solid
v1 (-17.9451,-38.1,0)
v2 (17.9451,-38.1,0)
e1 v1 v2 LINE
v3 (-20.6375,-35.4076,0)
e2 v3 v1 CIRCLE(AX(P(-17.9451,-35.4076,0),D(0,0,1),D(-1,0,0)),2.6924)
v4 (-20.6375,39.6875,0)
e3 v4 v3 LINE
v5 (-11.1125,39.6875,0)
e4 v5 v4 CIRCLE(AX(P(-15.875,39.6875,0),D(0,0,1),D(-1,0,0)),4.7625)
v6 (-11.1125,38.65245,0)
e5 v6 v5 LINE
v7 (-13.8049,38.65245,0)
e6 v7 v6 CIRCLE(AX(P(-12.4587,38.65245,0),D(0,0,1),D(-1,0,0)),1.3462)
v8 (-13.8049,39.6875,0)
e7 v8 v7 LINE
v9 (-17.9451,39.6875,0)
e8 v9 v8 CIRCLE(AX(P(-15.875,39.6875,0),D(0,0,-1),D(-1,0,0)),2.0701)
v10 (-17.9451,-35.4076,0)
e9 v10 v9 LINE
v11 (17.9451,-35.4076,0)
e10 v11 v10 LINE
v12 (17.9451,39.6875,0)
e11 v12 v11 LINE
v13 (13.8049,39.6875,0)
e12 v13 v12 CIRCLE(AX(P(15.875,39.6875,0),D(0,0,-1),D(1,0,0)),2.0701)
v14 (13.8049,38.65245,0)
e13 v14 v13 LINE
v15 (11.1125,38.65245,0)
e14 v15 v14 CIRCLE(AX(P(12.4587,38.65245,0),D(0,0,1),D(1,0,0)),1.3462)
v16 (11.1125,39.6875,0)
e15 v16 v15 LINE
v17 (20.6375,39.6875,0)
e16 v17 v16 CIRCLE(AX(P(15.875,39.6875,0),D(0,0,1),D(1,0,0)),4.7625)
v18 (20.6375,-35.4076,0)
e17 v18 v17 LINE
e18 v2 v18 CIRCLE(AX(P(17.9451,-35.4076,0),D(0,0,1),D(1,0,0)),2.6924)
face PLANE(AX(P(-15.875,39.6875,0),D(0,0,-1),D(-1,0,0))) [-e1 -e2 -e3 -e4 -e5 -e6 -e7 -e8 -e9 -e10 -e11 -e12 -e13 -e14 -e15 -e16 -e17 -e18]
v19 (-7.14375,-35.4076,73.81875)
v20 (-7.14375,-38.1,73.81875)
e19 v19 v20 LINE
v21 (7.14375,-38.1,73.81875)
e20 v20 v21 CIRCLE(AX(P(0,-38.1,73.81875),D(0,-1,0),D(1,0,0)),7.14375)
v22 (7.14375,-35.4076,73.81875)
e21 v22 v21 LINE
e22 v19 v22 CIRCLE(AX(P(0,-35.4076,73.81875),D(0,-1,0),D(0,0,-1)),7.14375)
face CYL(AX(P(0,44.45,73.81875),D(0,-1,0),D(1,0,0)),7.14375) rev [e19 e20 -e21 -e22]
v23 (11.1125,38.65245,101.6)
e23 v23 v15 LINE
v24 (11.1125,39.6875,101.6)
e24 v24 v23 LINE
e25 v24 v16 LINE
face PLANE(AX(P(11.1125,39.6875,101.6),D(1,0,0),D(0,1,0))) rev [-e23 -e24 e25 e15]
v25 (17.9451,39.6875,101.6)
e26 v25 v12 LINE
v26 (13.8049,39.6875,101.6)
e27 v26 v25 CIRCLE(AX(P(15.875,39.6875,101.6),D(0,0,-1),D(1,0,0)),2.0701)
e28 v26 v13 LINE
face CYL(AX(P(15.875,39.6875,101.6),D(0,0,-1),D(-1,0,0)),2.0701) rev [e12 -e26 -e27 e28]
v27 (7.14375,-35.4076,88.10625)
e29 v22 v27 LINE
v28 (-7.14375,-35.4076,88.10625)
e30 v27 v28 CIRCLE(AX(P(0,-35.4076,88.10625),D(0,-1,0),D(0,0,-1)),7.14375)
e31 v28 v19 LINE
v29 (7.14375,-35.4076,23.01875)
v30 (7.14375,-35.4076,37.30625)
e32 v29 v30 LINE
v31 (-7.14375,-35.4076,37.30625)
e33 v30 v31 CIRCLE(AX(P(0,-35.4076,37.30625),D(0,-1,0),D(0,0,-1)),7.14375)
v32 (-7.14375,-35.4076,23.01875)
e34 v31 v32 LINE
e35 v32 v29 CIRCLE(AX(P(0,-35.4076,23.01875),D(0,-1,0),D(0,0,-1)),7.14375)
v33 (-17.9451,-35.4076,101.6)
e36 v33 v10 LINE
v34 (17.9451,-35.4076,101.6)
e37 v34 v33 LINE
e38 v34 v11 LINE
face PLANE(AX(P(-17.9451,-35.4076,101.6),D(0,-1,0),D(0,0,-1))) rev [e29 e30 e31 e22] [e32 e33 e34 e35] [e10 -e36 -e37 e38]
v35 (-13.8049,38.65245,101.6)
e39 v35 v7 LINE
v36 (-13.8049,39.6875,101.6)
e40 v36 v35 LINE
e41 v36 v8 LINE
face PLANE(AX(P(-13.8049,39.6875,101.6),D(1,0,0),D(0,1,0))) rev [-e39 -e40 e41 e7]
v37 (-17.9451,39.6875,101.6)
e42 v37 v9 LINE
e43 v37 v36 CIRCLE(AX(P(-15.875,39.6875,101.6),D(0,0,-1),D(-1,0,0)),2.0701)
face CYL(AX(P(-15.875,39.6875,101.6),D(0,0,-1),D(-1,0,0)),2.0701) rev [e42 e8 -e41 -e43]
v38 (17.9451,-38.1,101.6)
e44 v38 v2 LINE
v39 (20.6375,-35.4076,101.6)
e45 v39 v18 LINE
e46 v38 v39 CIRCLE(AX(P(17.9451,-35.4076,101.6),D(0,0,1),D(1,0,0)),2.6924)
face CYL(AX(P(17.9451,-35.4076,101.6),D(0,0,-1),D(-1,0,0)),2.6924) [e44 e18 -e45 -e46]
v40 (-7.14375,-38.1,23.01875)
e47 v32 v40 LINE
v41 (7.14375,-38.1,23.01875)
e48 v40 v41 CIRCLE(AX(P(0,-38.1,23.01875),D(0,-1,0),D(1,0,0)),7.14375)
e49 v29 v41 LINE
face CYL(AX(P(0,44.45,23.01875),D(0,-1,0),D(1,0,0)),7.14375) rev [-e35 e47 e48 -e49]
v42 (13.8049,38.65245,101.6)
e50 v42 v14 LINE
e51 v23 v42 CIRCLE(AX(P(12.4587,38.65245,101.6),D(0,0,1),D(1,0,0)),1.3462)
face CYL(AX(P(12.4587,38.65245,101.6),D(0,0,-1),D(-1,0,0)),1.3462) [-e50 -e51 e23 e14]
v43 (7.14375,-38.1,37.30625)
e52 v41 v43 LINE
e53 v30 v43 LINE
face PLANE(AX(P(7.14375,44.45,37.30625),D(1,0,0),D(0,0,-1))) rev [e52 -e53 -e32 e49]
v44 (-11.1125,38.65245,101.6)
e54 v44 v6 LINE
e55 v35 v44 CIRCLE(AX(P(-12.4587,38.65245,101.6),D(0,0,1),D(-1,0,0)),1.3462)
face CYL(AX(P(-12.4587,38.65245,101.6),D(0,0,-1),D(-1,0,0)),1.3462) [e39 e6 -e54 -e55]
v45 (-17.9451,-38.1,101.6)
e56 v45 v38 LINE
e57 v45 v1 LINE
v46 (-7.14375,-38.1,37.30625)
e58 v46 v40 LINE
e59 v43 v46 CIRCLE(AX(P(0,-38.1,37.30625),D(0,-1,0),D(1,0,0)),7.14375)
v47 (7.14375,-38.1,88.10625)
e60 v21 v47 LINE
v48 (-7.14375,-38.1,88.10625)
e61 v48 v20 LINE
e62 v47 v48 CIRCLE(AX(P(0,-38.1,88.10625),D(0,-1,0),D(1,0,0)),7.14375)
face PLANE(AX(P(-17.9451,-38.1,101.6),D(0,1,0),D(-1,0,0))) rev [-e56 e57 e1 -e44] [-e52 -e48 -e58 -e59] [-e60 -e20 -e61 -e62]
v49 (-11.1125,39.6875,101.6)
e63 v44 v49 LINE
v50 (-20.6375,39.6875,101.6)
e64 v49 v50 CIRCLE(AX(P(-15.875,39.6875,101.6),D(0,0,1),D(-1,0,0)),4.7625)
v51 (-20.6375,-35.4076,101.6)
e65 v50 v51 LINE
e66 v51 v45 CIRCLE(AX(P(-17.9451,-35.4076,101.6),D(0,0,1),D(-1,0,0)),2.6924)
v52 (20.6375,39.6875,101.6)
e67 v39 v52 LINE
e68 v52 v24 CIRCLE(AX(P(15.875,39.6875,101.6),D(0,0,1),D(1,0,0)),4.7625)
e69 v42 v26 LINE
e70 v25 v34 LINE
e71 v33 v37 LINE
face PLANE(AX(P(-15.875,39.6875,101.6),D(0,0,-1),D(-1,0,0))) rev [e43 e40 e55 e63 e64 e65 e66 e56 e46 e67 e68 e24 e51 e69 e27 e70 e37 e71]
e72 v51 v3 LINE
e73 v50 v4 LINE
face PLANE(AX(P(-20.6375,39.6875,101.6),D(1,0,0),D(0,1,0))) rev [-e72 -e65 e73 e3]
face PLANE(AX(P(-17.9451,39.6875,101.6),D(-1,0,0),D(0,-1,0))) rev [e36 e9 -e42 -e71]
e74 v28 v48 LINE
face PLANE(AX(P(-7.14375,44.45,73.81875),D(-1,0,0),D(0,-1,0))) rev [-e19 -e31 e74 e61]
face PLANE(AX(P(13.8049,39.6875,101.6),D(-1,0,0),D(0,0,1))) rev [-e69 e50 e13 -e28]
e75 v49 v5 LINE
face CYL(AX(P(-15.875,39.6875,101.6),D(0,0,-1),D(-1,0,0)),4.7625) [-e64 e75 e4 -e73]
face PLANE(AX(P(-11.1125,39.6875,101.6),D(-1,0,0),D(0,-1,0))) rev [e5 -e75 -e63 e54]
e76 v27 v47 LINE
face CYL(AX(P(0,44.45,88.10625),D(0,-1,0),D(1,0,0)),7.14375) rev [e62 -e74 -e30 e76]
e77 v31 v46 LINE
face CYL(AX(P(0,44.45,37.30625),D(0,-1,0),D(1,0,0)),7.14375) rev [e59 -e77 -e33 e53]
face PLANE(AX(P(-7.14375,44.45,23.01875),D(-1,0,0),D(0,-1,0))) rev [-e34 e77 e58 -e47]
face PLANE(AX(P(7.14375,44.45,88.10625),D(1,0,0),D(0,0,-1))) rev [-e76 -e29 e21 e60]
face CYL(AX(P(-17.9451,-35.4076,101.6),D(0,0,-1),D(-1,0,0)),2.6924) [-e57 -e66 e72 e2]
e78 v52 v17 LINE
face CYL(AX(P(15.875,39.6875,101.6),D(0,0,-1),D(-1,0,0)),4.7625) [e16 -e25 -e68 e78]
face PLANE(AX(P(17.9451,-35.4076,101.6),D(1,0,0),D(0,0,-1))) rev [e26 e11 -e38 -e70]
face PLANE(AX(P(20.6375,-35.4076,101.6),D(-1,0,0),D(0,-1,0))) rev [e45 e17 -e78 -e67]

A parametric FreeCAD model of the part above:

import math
import FreeCAD as App
import Part
import Sketcher
Q = App.Units.Quantity

doc = App.newDocument("Part")
body = doc.addObject("PartDesign::Body", "Body")

sketch1 = body.newObject("Sketcher::SketchObject", "Sketch")
sketch1.AttachmentSupport = (doc.getObject("XY_Plane"), [""])
sketch1.MapMode = "FlatFace"
sketch1.addGeometry(Part.LineSegment(App.Vector(-20.6, 39.7, 0), App.Vector(-20.6, -35.4, 0)), False)
sketch1.addGeometry(Part.ArcOfCircle(Part.Circle(App.Vector(-17.9, -35.4, 0), App.Vector(0, 0, 1), 2.7), math.radians(180), math.radians(270)), False)
sketch1.addGeometry(Part.LineSegment(App.Vector(-17.9, -38.1, 0), App.Vector(17.9, -38.1, 0)), False)
sketch1.addGeometry(Part.ArcOfCircle(Part.Circle(App.Vector(17.9, -35.4, 0), App.Vector(0, 0, 1), 2.7), math.radians(-90), math.radians(0)), False)
sketch1.addGeometry(Part.LineSegment(App.Vector(20.6, -35.4, 0), App.Vector(20.6, 39.7, 0)), False)
sketch1.addGeometry(Part.ArcOfCircle(Part.Circle(App.Vector(15.9, 39.7, 0), App.Vector(0, 0, 1), 4.8), math.radians(0), math.radians(180)), False)
sketch1.addGeometry(Part.LineSegment(App.Vector(11.1, 39.7, 0), App.Vector(11.1, 38.7, 0)), False)
sketch1.addGeometry(Part.ArcOfCircle(Part.Circle(App.Vector(12.5, 38.7, 0), App.Vector(0, 0, 1), 1.3), math.radians(180), math.radians(360)), False)
sketch1.addGeometry(Part.LineSegment(App.Vector(13.8, 38.7, 0), App.Vector(13.8, 39.7, 0)), False)
sketch1.addGeometry(Part.ArcOfCircle(Part.Circle(App.Vector(15.9, 39.7, 0), App.Vector(0, 0, 1), 2.1), math.radians(0), math.radians(180)), False)
sketch1.addGeometry(Part.LineSegment(App.Vector(17.9, 39.7, 0), App.Vector(17.9, -35.4, 0)), False)
sketch1.addGeometry(Part.LineSegment(App.Vector(17.9, -35.4, 0), App.Vector(-17.9, -35.4, 0)), False)
sketch1.addGeometry(Part.LineSegment(App.Vector(-17.9, -35.4, 0), App.Vector(-17.9, 39.7, 0)), False)
sketch1.addGeometry(Part.ArcOfCircle(Part.Circle(App.Vector(-15.9, 39.7, 0), App.Vector(0, 0, 1), 2.1), math.radians(0), math.radians(180)), False)
sketch1.addGeometry(Part.LineSegment(App.Vector(-13.8, 39.7, 0), App.Vector(-13.8, 38.7, 0)), False)
sketch1.addGeometry(Part.ArcOfCircle(Part.Circle(App.Vector(-12.5, 38.7, 0), App.Vector(0, 0, 1), 1.3), math.radians(180), math.radians(360)), False)
sketch1.addGeometry(Part.LineSegment(App.Vector(-11.1, 38.7, 0), App.Vector(-11.1, 39.7, 0)), False)
sketch1.addGeometry(Part.ArcOfCircle(Part.Circle(App.Vector(-15.9, 39.7, 0), App.Vector(0, 0, 1), 4.8), math.radians(0), math.radians(180)), False)
sketch1.addConstraint(Sketcher.Constraint("Tangent", 0, 2, 1, 1))
sketch1.addConstraint(Sketcher.Constraint("Tangent", 1, 2, 2, 1))
sketch1.addConstraint(Sketcher.Constraint("Tangent", 2, 2, 3, 1))
sketch1.addConstraint(Sketcher.Constraint("Tangent", 3, 2, 4, 1))
sketch1.addConstraint(Sketcher.Constraint("Tangent", 4, 2, 5, 1))
sketch1.addConstraint(Sketcher.Constraint("Tangent", 5, 2, 6, 1))
sketch1.addConstraint(Sketcher.Constraint("Tangent", 6, 2, 7, 1))
sketch1.addConstraint(Sketcher.Constraint("Tangent", 7, 2, 8, 1))
sketch1.addConstraint(Sketcher.Constraint("Tangent", 8, 2, 9, 2))
sketch1.addConstraint(Sketcher.Constraint("Tangent", 9, 1, 10, 1))
sketch1.addConstraint(Sketcher.Constraint("Coincident", 10, 2, 11, 1))
sketch1.addConstraint(Sketcher.Constraint("Coincident", 11, 2, 12, 1))
sketch1.addConstraint(Sketcher.Constraint("Tangent", 12, 2, 13, 2))
sketch1.addConstraint(Sketcher.Constraint("Tangent", 13, 1, 14, 1))
sketch1.addConstraint(Sketcher.Constraint("Tangent", 14, 2, 15, 1))
sketch1.addConstraint(Sketcher.Constraint("Tangent", 15, 2, 16, 1))
sketch1.addConstraint(Sketcher.Constraint("Tangent", 16, 2, 17, 1))
sketch1.addConstraint(Sketcher.Constraint("Tangent", 17, 2, 0, 1))
sketch1.addConstraint(Sketcher.Constraint("Vertical", 0))
sketch1.addConstraint(Sketcher.Constraint("Horizontal", 2))
sketch1.addConstraint(Sketcher.Constraint("Vertical", 4))
sketch1.addConstraint(Sketcher.Constraint("Vertical", 6))
sketch1.addConstraint(Sketcher.Constraint("Vertical", 8))
sketch1.addConstraint(Sketcher.Constraint("Vertical", 10))
sketch1.addConstraint(Sketcher.Constraint("Horizontal", 11))
sketch1.addConstraint(Sketcher.Constraint("Vertical", 12))
sketch1.addConstraint(Sketcher.Constraint("Vertical", 14))
sketch1.addConstraint(Sketcher.Constraint("Vertical", 16))
sketch1.addConstraint(Sketcher.Constraint("Coincident", 9, 3, 5, 3))
sketch1.addConstraint(Sketcher.Constraint("Coincident", 17, 3, 13, 3))
sketch1.addConstraint(Sketcher.Constraint("Coincident", 10, 2, 3, 3))
sketch1.addConstraint(Sketcher.Constraint("Coincident", 11, 2, 1, 3))
sketch1.addConstraint(Sketcher.Constraint("Equal", 9, 13))
sketch1.addConstraint(Sketcher.Constraint("Symmetric", 5, 3, 13, 3, -2))
sketch1.addConstraint(Sketcher.Constraint("Horizontal", 7, 3, 15, 3))
sketch1.addConstraint(Sketcher.Constraint("Radius", 1, Q("0.106 in")))
sketch1.addConstraint(Sketcher.Constraint("Radius", 5, Q("0.1875 in")))
sketch1.addConstraint(Sketcher.Constraint("DistanceY", 1, 2, -1, 1, Q("1.5 in")))
sketch1.addConstraint(Sketcher.Constraint("DistanceX", 2, 1, 2, 2, Q("1.413 in")))
sketch1.addConstraint(Sketcher.Constraint("DistanceY", 0, 2, 0, 1, Q("2.9565 in")))
sketch1.addConstraint(Sketcher.Constraint("DistanceY", 6, 2, 6, 1, Q("1.03505 mm")))
pad1 = body.newObject("PartDesign::Pad", "Pad")
pad1.Profile = sketch1
pad1.Length = Q("4 in")

sketch2 = body.newObject("Sketcher::SketchObject", "Sketch001")
sketch2.AttachmentSupport = (doc.getObject("XZ_Plane"), [""])
sketch2.MapMode = "FlatFace"
sketch2.AttachmentOffset = App.Placement(App.Vector(0, 0, 1.5 * 25.4), App.Rotation())
sketch2.addGeometry(Part.LineSegment(App.Vector(7, 23, 0), App.Vector(7, 37, 0)), False)
sketch2.addGeometry(Part.ArcOfCircle(Part.Circle(App.Vector(0, 37, 0), App.Vector(0, 0, 1), 7), math.radians(0), math.radians(180)), False)
sketch2.addGeometry(Part.LineSegment(App.Vector(-7, 37, 0), App.Vector(-7, 23, 0)), False)
sketch2.addGeometry(Part.ArcOfCircle(Part.Circle(App.Vector(0, 23, 0), App.Vector(0, 0, 1), 7), math.radians(180), math.radians(360)), False)
sketch2.addConstraint(Sketcher.Constraint("Tangent", 0, 2, 1, 1))
sketch2.addConstraint(Sketcher.Constraint("Tangent", 1, 2, 2, 1))
sketch2.addConstraint(Sketcher.Constraint("Tangent", 2, 2, 3, 1))
sketch2.addConstraint(Sketcher.Constraint("Tangent", 3, 2, 0, 1))
sketch2.addConstraint(Sketcher.Constraint("Vertical", 0))
sketch2.addConstraint(Sketcher.Constraint("Vertical", 2))
sketch2.addConstraint(Sketcher.Constraint("PointOnObject", 1, 3, -2))
sketch2.addConstraint(Sketcher.Constraint("Radius", 1, Q("0.28125 in")))
sketch2.addConstraint(Sketcher.Constraint("DistanceY", 0, 1, 0, 2, Q("0.5625 in")))
sketch2.addConstraint(Sketcher.Constraint("DistanceY", -1, 1, 1, 3, Q("1.46875 in")))
pocket1 = body.newObject("PartDesign::Pocket", "Pocket")
pocket1.Profile = sketch2
pocket1.Type = "ThroughAll"
doc.recompute()

linearpattern = body.newObject("PartDesign::LinearPattern", "LinearPattern")
linearpattern.Originals = [pocket1]
linearpattern.Direction = (doc.getObject("Z_Axis"), [""])
linearpattern.Mode = "offset"
linearpattern.Offset = Q("2 in")
linearpattern.Occurrences = 2
body.Tip = linearpattern

doc.recompute()
